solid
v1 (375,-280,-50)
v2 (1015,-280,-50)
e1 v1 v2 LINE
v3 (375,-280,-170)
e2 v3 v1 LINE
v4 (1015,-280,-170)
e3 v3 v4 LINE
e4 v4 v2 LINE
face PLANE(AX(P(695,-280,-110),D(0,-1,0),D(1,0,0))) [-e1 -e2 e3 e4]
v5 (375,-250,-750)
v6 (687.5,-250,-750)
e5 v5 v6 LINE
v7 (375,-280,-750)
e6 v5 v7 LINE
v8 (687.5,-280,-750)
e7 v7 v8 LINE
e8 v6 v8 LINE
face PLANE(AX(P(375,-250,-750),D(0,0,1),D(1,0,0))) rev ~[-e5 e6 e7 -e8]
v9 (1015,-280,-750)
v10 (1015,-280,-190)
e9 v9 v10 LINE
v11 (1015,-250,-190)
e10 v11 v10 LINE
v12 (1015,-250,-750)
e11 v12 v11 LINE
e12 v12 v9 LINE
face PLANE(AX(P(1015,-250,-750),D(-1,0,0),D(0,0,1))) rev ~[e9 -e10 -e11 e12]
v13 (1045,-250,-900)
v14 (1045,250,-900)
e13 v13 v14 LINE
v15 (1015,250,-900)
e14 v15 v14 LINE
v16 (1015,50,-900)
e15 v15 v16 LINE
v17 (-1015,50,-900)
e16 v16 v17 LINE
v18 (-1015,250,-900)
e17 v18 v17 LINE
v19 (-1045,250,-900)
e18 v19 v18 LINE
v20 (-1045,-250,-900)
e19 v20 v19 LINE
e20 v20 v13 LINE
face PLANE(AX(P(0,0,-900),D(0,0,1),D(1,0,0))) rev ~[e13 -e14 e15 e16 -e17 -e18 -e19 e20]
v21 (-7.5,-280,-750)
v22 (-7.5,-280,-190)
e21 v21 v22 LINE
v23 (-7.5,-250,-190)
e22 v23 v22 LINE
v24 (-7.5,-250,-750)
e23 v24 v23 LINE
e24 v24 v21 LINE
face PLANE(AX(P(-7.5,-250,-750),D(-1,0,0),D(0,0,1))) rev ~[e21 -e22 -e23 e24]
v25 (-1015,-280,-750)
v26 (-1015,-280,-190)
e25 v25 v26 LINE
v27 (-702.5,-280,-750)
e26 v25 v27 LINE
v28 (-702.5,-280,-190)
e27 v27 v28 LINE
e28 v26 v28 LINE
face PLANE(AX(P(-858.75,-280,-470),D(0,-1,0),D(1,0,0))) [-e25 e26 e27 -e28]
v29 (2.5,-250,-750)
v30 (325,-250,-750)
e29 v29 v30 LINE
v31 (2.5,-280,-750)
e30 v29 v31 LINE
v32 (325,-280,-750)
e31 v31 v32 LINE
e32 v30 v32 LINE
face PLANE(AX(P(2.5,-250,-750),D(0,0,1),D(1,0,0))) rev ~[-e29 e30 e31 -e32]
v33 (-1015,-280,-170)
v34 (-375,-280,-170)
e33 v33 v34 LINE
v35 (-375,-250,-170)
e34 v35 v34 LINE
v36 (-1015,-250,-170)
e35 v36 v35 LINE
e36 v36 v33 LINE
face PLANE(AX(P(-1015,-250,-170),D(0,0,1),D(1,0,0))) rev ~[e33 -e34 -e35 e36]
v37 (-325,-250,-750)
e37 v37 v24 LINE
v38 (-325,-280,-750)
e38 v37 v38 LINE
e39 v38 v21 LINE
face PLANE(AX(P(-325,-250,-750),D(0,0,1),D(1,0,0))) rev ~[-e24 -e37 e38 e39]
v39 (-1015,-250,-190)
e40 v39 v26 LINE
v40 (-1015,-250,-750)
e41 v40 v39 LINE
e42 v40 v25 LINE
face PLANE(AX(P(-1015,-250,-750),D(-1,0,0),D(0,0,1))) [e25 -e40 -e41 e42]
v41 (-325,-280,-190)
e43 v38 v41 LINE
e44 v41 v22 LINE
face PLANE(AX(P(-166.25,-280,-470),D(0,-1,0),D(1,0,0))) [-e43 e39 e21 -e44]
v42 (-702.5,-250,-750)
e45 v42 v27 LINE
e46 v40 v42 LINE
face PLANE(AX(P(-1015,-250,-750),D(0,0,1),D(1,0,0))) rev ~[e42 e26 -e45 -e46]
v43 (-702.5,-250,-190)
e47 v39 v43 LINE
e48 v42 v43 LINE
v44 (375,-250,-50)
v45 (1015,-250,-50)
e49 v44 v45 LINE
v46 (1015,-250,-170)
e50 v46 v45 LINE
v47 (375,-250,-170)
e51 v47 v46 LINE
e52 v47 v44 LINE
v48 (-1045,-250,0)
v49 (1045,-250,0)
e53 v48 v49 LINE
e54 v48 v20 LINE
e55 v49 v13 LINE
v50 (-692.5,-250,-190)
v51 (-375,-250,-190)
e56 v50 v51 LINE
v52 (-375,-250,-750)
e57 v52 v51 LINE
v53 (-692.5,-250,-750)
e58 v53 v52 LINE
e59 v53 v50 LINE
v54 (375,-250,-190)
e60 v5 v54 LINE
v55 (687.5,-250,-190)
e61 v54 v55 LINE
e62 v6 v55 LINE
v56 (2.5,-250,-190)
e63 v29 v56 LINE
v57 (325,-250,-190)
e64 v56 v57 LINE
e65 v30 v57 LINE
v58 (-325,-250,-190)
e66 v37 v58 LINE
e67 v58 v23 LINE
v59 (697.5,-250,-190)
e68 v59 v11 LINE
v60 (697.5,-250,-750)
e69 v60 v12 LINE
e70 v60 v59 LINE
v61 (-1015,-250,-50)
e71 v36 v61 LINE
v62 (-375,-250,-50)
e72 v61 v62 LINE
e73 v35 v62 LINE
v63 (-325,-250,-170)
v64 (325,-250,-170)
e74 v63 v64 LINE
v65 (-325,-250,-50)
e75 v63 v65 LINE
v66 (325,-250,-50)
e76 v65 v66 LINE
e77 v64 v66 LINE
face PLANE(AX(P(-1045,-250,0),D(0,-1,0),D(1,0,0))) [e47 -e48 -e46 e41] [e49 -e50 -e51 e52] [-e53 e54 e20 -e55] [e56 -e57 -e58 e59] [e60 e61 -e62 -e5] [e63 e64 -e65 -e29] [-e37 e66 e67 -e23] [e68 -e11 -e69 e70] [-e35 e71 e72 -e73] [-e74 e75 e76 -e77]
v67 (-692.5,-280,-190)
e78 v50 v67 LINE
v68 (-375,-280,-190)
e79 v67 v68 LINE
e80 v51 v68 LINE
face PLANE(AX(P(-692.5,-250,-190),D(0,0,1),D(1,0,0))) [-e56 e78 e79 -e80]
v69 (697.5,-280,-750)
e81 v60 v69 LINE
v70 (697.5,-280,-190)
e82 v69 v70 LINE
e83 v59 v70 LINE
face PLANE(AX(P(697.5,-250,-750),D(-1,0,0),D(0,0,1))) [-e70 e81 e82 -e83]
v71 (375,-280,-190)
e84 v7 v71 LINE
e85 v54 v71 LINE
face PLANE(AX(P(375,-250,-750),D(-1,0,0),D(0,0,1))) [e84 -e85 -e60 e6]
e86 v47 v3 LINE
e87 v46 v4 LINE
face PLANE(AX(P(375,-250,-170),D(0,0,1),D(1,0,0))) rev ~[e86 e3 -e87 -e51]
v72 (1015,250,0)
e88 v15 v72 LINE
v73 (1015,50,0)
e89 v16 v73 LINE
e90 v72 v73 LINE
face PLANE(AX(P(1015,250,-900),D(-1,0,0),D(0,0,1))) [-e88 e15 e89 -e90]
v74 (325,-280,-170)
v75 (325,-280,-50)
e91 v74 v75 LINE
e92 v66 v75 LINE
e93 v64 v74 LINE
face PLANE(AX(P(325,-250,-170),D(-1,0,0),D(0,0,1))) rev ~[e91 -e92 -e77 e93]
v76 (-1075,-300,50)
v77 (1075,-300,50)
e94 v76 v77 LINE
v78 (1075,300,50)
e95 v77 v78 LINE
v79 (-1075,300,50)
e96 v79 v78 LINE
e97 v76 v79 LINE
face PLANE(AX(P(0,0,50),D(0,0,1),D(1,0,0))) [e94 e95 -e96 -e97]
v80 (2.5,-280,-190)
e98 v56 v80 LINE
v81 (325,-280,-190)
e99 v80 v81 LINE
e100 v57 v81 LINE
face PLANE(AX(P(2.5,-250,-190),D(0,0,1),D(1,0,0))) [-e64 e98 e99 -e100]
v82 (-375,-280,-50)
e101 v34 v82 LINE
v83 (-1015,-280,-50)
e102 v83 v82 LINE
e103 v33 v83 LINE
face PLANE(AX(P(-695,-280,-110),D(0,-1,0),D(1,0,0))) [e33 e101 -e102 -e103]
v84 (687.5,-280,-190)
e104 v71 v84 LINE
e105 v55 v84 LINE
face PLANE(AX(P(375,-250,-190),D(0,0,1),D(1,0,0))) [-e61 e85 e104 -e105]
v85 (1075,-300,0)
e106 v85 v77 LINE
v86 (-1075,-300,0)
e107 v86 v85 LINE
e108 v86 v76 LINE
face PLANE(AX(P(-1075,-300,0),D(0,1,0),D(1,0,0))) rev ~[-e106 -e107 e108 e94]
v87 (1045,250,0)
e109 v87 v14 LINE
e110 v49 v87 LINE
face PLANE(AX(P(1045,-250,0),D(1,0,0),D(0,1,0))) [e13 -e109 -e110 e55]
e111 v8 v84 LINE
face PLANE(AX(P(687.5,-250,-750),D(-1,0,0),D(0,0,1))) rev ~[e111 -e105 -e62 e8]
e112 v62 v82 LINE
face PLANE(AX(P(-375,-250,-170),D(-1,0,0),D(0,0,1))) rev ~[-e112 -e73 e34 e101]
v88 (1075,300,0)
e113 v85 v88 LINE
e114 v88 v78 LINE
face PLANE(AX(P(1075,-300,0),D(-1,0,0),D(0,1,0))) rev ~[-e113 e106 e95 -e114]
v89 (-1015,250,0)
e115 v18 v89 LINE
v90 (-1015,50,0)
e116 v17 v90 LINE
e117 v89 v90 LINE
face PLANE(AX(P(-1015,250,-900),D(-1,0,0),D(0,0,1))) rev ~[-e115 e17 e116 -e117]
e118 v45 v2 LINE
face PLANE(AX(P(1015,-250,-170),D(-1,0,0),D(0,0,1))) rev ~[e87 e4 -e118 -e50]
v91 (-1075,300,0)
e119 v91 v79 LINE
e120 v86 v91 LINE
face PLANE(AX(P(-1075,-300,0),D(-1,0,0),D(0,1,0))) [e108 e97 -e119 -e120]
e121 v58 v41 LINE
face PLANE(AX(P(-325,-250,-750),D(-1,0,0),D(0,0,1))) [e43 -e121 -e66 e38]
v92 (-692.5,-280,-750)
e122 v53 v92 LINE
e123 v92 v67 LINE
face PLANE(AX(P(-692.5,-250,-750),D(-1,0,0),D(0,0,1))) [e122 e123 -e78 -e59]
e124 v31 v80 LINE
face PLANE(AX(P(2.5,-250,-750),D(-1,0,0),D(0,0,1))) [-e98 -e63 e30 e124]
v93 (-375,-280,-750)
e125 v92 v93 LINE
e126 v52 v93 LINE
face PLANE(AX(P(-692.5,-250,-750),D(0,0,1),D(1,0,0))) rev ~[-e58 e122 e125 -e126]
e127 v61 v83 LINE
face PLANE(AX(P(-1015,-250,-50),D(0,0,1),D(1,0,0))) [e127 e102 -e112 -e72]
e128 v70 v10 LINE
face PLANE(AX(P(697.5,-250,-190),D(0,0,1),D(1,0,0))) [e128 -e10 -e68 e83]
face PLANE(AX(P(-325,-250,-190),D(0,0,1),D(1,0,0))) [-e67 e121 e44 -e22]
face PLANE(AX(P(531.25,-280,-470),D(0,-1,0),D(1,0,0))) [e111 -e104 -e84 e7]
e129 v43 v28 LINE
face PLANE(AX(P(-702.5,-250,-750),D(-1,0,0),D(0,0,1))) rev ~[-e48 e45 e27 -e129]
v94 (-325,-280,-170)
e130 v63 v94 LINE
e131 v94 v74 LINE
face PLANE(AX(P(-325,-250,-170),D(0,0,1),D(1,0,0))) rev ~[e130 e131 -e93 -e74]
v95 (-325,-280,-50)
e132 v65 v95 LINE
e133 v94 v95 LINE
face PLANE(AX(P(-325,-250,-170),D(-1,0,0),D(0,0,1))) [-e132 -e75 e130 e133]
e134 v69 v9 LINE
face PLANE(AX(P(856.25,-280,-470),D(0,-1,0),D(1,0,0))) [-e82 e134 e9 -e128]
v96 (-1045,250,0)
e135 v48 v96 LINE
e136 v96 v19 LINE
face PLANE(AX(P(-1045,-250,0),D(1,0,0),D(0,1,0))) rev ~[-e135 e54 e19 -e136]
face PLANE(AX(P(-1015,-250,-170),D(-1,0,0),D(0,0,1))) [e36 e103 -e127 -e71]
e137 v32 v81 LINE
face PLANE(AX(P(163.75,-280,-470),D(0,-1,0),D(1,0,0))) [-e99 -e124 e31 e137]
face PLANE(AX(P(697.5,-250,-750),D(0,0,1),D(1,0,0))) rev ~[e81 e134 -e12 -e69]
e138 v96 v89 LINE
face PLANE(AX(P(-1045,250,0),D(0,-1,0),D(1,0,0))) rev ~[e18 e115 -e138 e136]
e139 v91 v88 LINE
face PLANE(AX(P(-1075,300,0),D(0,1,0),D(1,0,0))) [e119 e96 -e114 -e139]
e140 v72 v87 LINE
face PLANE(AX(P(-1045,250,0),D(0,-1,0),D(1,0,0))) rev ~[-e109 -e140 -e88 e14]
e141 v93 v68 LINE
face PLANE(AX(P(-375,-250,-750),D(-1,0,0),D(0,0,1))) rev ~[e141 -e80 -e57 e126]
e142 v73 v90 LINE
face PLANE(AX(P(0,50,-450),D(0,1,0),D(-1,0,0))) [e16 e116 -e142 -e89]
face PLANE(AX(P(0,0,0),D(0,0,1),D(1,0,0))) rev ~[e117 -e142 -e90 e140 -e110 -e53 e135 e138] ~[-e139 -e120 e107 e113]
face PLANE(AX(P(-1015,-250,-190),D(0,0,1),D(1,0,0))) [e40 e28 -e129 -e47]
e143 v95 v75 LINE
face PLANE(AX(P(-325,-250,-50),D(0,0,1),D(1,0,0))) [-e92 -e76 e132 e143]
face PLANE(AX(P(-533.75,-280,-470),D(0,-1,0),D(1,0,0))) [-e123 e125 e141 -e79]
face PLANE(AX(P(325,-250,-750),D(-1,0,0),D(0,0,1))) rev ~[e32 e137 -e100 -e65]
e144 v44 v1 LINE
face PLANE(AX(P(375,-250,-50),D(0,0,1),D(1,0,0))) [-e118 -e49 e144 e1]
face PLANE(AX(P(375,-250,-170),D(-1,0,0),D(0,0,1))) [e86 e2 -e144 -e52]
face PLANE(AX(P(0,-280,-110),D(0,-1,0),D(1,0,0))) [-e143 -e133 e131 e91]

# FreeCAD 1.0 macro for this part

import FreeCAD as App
import Part
import Sketcher
from FreeCAD import Vector


def add_polygon(sketch, points):
    """Adds a closed chain of lines whose ends are joined by coincident constraints."""
    first, n = sketch.GeometryCount, len(points)
    for a, b in zip(points, points[1:] + points[:1]):
        sketch.addGeometry(Part.LineSegment(App.Vector(*a, 0), App.Vector(*b, 0)), False)
    for i in range(n):
        sketch.addConstraint(Sketcher.Constraint("Coincident", first + i, 2, first + (i + 1) % n, 1))

doc = App.newDocument("Part")
params = doc.addObject("Spreadsheet::Sheet", "Params")
for row, (alias, value) in enumerate([
    ("sketch1_width", "2150 mm"),
    ("sketch1_height", "600 mm"),
    ("pad1_length", "50 mm"),
    ("sketch2_width", "2090 mm"),
    ("sketch2_height", "500 mm"),
    ("pad2_length", "900 mm"),
    ("sketch3_width", "640 mm"),
    ("sketch3_width2", "650 mm"),
    ("sketch3_height", "120 mm"),
    ("sketch3_height2", "560 mm"),
    ("sketch3_width3", "312.5 mm"),
    ("pad3_length", "30 mm"),
    ("sketch4_width", "2030 mm"),
    ("sketch4_height", "900 mm"),
    ("pocket1_length", "200 mm"),
], start=1):
    params.set(f"A{row}", alias)
    params.set(f"B{row}", "=" + value)
    params.setAlias(f"B{row}", alias)

body = doc.addObject("PartDesign::Body", "Body")

sketch1 = doc.addObject("Sketcher::SketchObject", "Sketch")
body.addObject(sketch1)
sketch1.AttachmentSupport = (doc.XY_Plane, [""])
sketch1.MapMode = "FlatFace"
add_polygon(sketch1, [(-1075, 300), (-1075, -300), (1075, -300), (1075, 300)])
sketch1.addConstraint(Sketcher.Constraint("Vertical", 0))
sketch1.addConstraint(Sketcher.Constraint("Horizontal", 1))
sketch1.addConstraint(Sketcher.Constraint("Vertical", 2))
sketch1.addConstraint(Sketcher.Constraint("Horizontal", 3))
sketch1.addConstraint(Sketcher.Constraint("Symmetric", 0, 2, 2, 2, -1, 1))
sketch1.addConstraint(Sketcher.Constraint("DistanceX", 1, 1, 1, 2, 2150.0))
sketch1.addConstraint(Sketcher.Constraint("DistanceY", 0, 2, 0, 1, 600.0))
sketch1.setExpression("Constraints[9]", "Params.sketch1_width")
sketch1.setExpression("Constraints[10]", "Params.sketch1_height")
pad1 = doc.addObject("PartDesign::Pad", "Pad")
body.addObject(pad1)
pad1.Profile = sketch1
pad1.setExpression("Length", "Params.pad1_length")

sketch2 = doc.addObject("Sketcher::SketchObject", "Sketch001")
body.addObject(sketch2)
sketch2.AttachmentSupport = (doc.XY_Plane, [""])
sketch2.MapMode = "FlatFace"
add_polygon(sketch2, [(-1045, 250), (-1045, -250), (1045, -250), (1045, 250)])
sketch2.addConstraint(Sketcher.Constraint("Vertical", 0))
sketch2.addConstraint(Sketcher.Constraint("Horizontal", 1))
sketch2.addConstraint(Sketcher.Constraint("Vertical", 2))
sketch2.addConstraint(Sketcher.Constraint("Horizontal", 3))
sketch2.addConstraint(Sketcher.Constraint("Symmetric", 0, 2, 2, 2, -1, 1))
sketch2.addConstraint(Sketcher.Constraint("DistanceX", 1, 1, 1, 2, 2090.0))
sketch2.addConstraint(Sketcher.Constraint("DistanceY", 0, 2, 0, 1, 500.0))
sketch2.setExpression("Constraints[9]", "Params.sketch2_width")
sketch2.setExpression("Constraints[10]", "Params.sketch2_height")
pad2 = doc.addObject("PartDesign::Pad", "Pad001")
body.addObject(pad2)
pad2.Profile = sketch2
pad2.setExpression("Length", "Params.pad2_length")
pad2.Reversed = True

sketch3 = doc.addObject("Sketcher::SketchObject", "Sketch002")
body.addObject(sketch3)
sketch3.AttachmentSupport = (doc.XZ_Plane, [""])
sketch3.MapMode = "FlatFace"
sketch3.AttachmentOffset = App.Placement(Vector(0, 0, 250), App.Rotation())
add_polygon(sketch3, [(-1015, -50), (-1015, -170), (-375, -170), (-375, -50)])
add_polygon(sketch3, [(-325, -50), (-325, -170), (325, -170), (325, -50)])
add_polygon(sketch3, [(375, -50), (375, -170), (1015, -170), (1015, -50)])
add_polygon(sketch3, [(-1015, -190), (-1015, -750), (-702, -750), (-702, -190)])
add_polygon(sketch3, [(-692, -190), (-692, -750), (-375, -750), (-375, -190)])
add_polygon(sketch3, [(-325, -190), (-325, -750), (-8, -750), (-8, -190)])
add_polygon(sketch3, [(2, -190), (2, -750), (325, -750), (325, -190)])
add_polygon(sketch3, [(375, -190), (375, -750), (688, -750), (688, -190)])
add_polygon(sketch3, [(698, -190), (698, -750), (1015, -750), (1015, -190)])
sketch3.addConstraint(Sketcher.Constraint("Vertical", 0))
sketch3.addConstraint(Sketcher.Constraint("Horizontal", 1))
sketch3.addConstraint(Sketcher.Constraint("Vertical", 2))
sketch3.addConstraint(Sketcher.Constraint("Horizontal", 3))
sketch3.addConstraint(Sketcher.Constraint("Vertical", 4))
sketch3.addConstraint(Sketcher.Constraint("Horizontal", 5))
sketch3.addConstraint(Sketcher.Constraint("Vertical", 6))
sketch3.addConstraint(Sketcher.Constraint("Horizontal", 7))
sketch3.addConstraint(Sketcher.Constraint("Vertical", 8))
sketch3.addConstraint(Sketcher.Constraint("Horizontal", 9))
sketch3.addConstraint(Sketcher.Constraint("Vertical", 10))
sketch3.addConstraint(Sketcher.Constraint("Horizontal", 11))
sketch3.addConstraint(Sketcher.Constraint("Vertical", 12))
sketch3.addConstraint(Sketcher.Constraint("Horizontal", 13))
sketch3.addConstraint(Sketcher.Constraint("Vertical", 14))
sketch3.addConstraint(Sketcher.Constraint("Horizontal", 15))
sketch3.addConstraint(Sketcher.Constraint("Vertical", 16))
sketch3.addConstraint(Sketcher.Constraint("Horizontal", 17))
sketch3.addConstraint(Sketcher.Constraint("Vertical", 18))
sketch3.addConstraint(Sketcher.Constraint("Horizontal", 19))
sketch3.addConstraint(Sketcher.Constraint("Vertical", 20))
sketch3.addConstraint(Sketcher.Constraint("Horizontal", 21))
sketch3.addConstraint(Sketcher.Constraint("Vertical", 22))
sketch3.addConstraint(Sketcher.Constraint("Horizontal", 23))
sketch3.addConstraint(Sketcher.Constraint("Vertical", 24))
sketch3.addConstraint(Sketcher.Constraint("Horizontal", 25))
sketch3.addConstraint(Sketcher.Constraint("Vertical", 26))
sketch3.addConstraint(Sketcher.Constraint("Horizontal", 27))
sketch3.addConstraint(Sketcher.Constraint("Vertical", 28))
sketch3.addConstraint(Sketcher.Constraint("Horizontal", 29))
sketch3.addConstraint(Sketcher.Constraint("Vertical", 30))
sketch3.addConstraint(Sketcher.Constraint("Horizontal", 31))
sketch3.addConstraint(Sketcher.Constraint("Vertical", 32))
sketch3.addConstraint(Sketcher.Constraint("Horizontal", 33))
sketch3.addConstraint(Sketcher.Constraint("Vertical", 34))
sketch3.addConstraint(Sketcher.Constraint("Horizontal", 35))
sketch3.addConstraint(Sketcher.Constraint("Symmetric", 1, 2, 8, 2, -2))
sketch3.addConstraint(Sketcher.Constraint("Symmetric", 3, 2, 10, 2, -2))
sketch3.addConstraint(Sketcher.Constraint("Symmetric", 20, 2, 25, 2, -2))
sketch3.addConstraint(Sketcher.Constraint("Symmetric", 17, 2, 28, 2, -2))
sketch3.addConstraint(Sketcher.Constraint("Symmetric", 12, 2, 33, 2, -2))
sketch3.addConstraint(Sketcher.Constraint("Horizontal", 1, 2, 4, 2))
sketch3.addConstraint(Sketcher.Constraint("Horizontal", 3, 2, 6, 2))
sketch3.addConstraint(Sketcher.Constraint("Horizontal", 13, 2, 16, 2))
sketch3.addConstraint(Sketcher.Constraint("Horizontal", 15, 2, 18, 2))
sketch3.addConstraint(Sketcher.Constraint("Horizontal", 17, 2, 20, 2))
sketch3.addConstraint(Sketcher.Constraint("Horizontal", 19, 2, 22, 2))
sketch3.addConstraint(Sketcher.Constraint("Horizontal", 23, 2, 26, 2))
sketch3.addConstraint(Sketcher.Constraint("Horizontal", 27, 2, 30, 2))
sketch3.addConstraint(Sketcher.Constraint("Horizontal", 31, 2, 34, 2))
sketch3.addConstraint(Sketcher.Constraint("Vertical", 3, 2, 12, 2))
sketch3.addConstraint(Sketcher.Constraint("Vertical", 2, 2, 17, 2))
sketch3.addConstraint(Sketcher.Constraint("Vertical", 7, 2, 20, 2))
sketch3.addConstraint(Sketcher.Constraint("Vertical", 6, 2, 25, 2))
sketch3.addConstraint(Sketcher.Constraint("Equal", 19, 21))
sketch3.addConstraint(Sketcher.Constraint("Equal", 15, 29))
sketch3.addConstraint(Sketcher.Constraint("Equal", 23, 33))
sketch3.addConstraint(Sketcher.Constraint("DistanceX", 1, 1, 1, 2, 640.0))
sketch3.addConstraint(Sketcher.Constraint("DistanceX", 5, 1, 5, 2, 650.0))
sketch3.addConstraint(Sketcher.Constraint("DistanceY", 0, 2, 0, 1, 120.0))
sketch3.addConstraint(Sketcher.Constraint("DistanceY", 12, 2, 12, 1, 560.0))
sketch3.addConstraint(Sketcher.Constraint("DistanceX", 13, 1, 13, 2, 312.5))
sketch3.addConstraint(Sketcher.Constraint("DistanceX", 17, 1, 17, 2, 317.5))
sketch3.addConstraint(Sketcher.Constraint("DistanceX", 25, 1, 25, 2, 322.5))
sketch3.addConstraint(Sketcher.Constraint("DistanceX", 0, 2, -1, 1, 1015.0))
sketch3.addConstraint(Sketcher.Constraint("DistanceY", 0, 2, -1, 1, 170.0))
sketch3.addConstraint(Sketcher.Constraint("DistanceY", 12, 2, -1, 1, 750.0))
sketch3.setExpression("Constraints[93]", "Params.sketch3_width")
sketch3.setExpression("Constraints[94]", "Params.sketch3_width2")
sketch3.setExpression("Constraints[95]", "Params.sketch3_height")
sketch3.setExpression("Constraints[96]", "Params.sketch3_height2")
sketch3.setExpression("Constraints[97]", "Params.sketch3_width3")
pad3 = doc.addObject("PartDesign::Pad", "Pad002")
body.addObject(pad3)
pad3.Profile = sketch3
pad3.setExpression("Length", "Params.pad3_length")

sketch4 = doc.addObject("Sketcher::SketchObject", "Sketch003")
body.addObject(sketch4)
sketch4.AttachmentSupport = (doc.XZ_Plane, [""])
sketch4.MapMode = "FlatFace"
sketch4.AttachmentOffset = App.Placement(Vector(0, 0, -250), App.Rotation())
add_polygon(sketch4, [(1015, 0), (1015, -900), (-1015, -900), (-1015, 0)])
sketch4.addConstraint(Sketcher.Constraint("Vertical", 0))
sketch4.addConstraint(Sketcher.Constraint("Horizontal", 1))
sketch4.addConstraint(Sketcher.Constraint("Vertical", 2))
sketch4.addConstraint(Sketcher.Constraint("Horizontal", 3))
sketch4.addConstraint(Sketcher.Constraint("Symmetric", 2, 2, 3, 2, -1, 1))
sketch4.addConstraint(Sketcher.Constraint("DistanceX", 1, 2, 1, 1, 2030.0))
sketch4.addConstraint(Sketcher.Constraint("DistanceY", 0, 2, 0, 1, 900.0))
sketch4.setExpression("Constraints[9]", "Params.sketch4_width")
sketch4.setExpression("Constraints[10]", "Params.sketch4_height")
pocket1 = doc.addObject("PartDesign::Pocket", "Pocket")
body.addObject(pocket1)
pocket1.Profile = sketch4
pocket1.setExpression("Length", "Params.pocket1_length")
pocket1.Reversed = True

doc.recompute()
